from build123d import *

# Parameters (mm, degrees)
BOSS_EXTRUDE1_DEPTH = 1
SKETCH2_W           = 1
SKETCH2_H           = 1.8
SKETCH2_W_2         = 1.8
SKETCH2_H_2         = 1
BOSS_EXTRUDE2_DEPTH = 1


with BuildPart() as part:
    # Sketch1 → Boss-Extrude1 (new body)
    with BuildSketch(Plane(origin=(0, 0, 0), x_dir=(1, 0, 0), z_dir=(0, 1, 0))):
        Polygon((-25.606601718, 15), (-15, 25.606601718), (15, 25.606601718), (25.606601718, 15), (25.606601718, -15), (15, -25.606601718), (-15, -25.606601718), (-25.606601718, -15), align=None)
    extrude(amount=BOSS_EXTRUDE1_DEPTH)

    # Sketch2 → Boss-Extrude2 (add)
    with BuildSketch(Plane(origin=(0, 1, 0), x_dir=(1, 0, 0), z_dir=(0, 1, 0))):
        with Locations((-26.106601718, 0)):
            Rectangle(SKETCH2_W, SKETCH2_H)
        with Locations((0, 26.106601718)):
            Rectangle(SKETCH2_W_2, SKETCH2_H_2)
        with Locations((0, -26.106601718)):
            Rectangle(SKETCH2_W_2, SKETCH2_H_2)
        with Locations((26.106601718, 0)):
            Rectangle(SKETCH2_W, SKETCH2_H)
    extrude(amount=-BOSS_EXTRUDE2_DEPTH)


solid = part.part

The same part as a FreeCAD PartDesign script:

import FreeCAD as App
import Part
import Sketcher

V = App.Vector

doc = App.newDocument("Part")
body = doc.addObject("PartDesign::Body", "Body")

# Sketch on XZ plane
sketch1 = doc.addObject("Sketcher::SketchObject", "Sketch")
body.addObject(sketch1)
sketch1.AttachmentSupport = (doc.XZ_Plane, [""])
sketch1.MapMode = "FlatFace"
sketch1.addGeometry([
    Part.LineSegment(V(-15, -26, 0), V(-26, -15, 0)),  # 0
    Part.LineSegment(V(-26, -15, 0), V(-26, 15, 0)),  # 1
    Part.LineSegment(V(-26, 15, 0), V(-15, 26, 0)),  # 2
    Part.LineSegment(V(-15, 26, 0), V(15, 26, 0)),  # 3
    Part.LineSegment(V(15, 26, 0), V(26, 15, 0)),  # 4
    Part.LineSegment(V(26, 15, 0), V(26, -15, 0)),  # 5
    Part.LineSegment(V(26, -15, 0), V(15, -26, 0)),  # 6
    Part.LineSegment(V(15, -26, 0), V(-15, -26, 0)),  # 7
], False)
sketch1.addConstraint([
    Sketcher.Constraint("Coincident", 0, 2, 1, 1),
    Sketcher.Constraint("Coincident", 1, 2, 2, 1),
    Sketcher.Constraint("Coincident", 2, 2, 3, 1),
    Sketcher.Constraint("Coincident", 3, 2, 4, 1),
    Sketcher.Constraint("Coincident", 4, 2, 5, 1),
    Sketcher.Constraint("Coincident", 5, 2, 6, 1),
    Sketcher.Constraint("Coincident", 6, 2, 7, 1),
    Sketcher.Constraint("Coincident", 7, 2, 0, 1),
    Sketcher.Constraint("Vertical", 1),
    Sketcher.Constraint("Horizontal", 3),
    Sketcher.Constraint("Vertical", 5),
    Sketcher.Constraint("Horizontal", 7),
    Sketcher.Constraint("Symmetric", 0, 2, 4, 2, -1, 1),
    Sketcher.Constraint("Symmetric", 2, 2, 6, 2, -1, 1),
    Sketcher.Constraint("Perpendicular", 0, 2),
    Sketcher.Constraint("Perpendicular", 2, 4),
    Sketcher.Constraint("Perpendicular", 4, 6),
    Sketcher.Constraint("Horizontal", 1, 2, 4, 2),
    Sketcher.Constraint("Vertical", 3, 2, 6, 2),
    Sketcher.Constraint("Equal", 7, 1),
    Sketcher.Constraint("DistanceX", 3, 1, 3, 2, 30.0),
    Sketcher.Constraint("Distance", 0, 15.0),
])
pad1 = doc.addObject("PartDesign::Pad", "Pad")
body.addObject(pad1)
pad1.Profile = sketch1
pad1.Length = 1
pad1.Reversed = True

# Sketch on XZ plane
sketch2 = doc.addObject("Sketcher::SketchObject", "Sketch001")
body.addObject(sketch2)
sketch2.AttachmentSupport = (doc.XZ_Plane, [""])
sketch2.MapMode = "FlatFace"
sketch2.AttachmentOffset = App.Placement(V(0, 0, -1), App.Rotation())
sketch2.addGeometry([
    Part.LineSegment(V(-26.6, -0.9, 0), V(-26.6, 0.9, 0)),  # 0
    Part.LineSegment(V(-26.6, 0.9, 0), V(-25.6, 0.9, 0)),  # 1
    Part.LineSegment(V(-25.6, 0.9, 0), V(-25.6, -0.9, 0)),  # 2
    Part.LineSegment(V(-25.6, -0.9, 0), V(-26.6, -0.9, 0)),  # 3
    Part.LineSegment(V(-0.9, -26.6, 0), V(-0.9, -25.6, 0)),  # 4
    Part.LineSegment(V(-0.9, -25.6, 0), V(0.9, -25.6, 0)),  # 5
    Part.LineSegment(V(0.9, -25.6, 0), V(0.9, -26.6, 0)),  # 6
    Part.LineSegment(V(0.9, -26.6, 0), V(-0.9, -26.6, 0)),  # 7
    Part.LineSegment(V(-0.9, 25.6, 0), V(-0.9, 26.6, 0)),  # 8
    Part.LineSegment(V(-0.9, 26.6, 0), V(0.9, 26.6, 0)),  # 9
    Part.LineSegment(V(0.9, 26.6, 0), V(0.9, 25.6, 0)),  # 10
    Part.LineSegment(V(0.9, 25.6, 0), V(-0.9, 25.6, 0)),  # 11
    Part.LineSegment(V(25.6, -0.9, 0), V(25.6, 0.9, 0)),  # 12
    Part.LineSegment(V(25.6, 0.9, 0), V(26.6, 0.9, 0)),  # 13
    Part.LineSegment(V(26.6, 0.9, 0), V(26.6, -0.9, 0)),  # 14
    Part.LineSegment(V(26.6, -0.9, 0), V(25.6, -0.9, 0)),  # 15
], False)
sketch2.addConstraint([
    Sketcher.Constraint("Coincident", 0, 2, 1, 1),
    Sketcher.Constraint("Coincident", 1, 2, 2, 1),
    Sketcher.Constraint("Coincident", 2, 2, 3, 1),
    Sketcher.Constraint("Coincident", 3, 2, 0, 1),
    Sketcher.Constraint("Coincident", 4, 2, 5, 1),
    Sketcher.Constraint("Coincident", 5, 2, 6, 1),
    Sketcher.Constraint("Coincident", 6, 2, 7, 1),
    Sketcher.Constraint("Coincident", 7, 2, 4, 1),
    Sketcher.Constraint("Coincident", 8, 2, 9, 1),
    Sketcher.Constraint("Coincident", 9, 2, 10, 1),
    Sketcher.Constraint("Coincident", 10, 2, 11, 1),
    Sketcher.Constraint("Coincident", 11, 2, 8, 1),
    Sketcher.Constraint("Coincident", 12, 2, 13, 1),
    Sketcher.Constraint("Coincident", 13, 2, 14, 1),
    Sketcher.Constraint("Coincident", 14, 2, 15, 1),
    Sketcher.Constraint("Coincident", 15, 2, 12, 1),
    Sketcher.Constraint("Vertical", 0),
    Sketcher.Constraint("Horizontal", 1),
    Sketcher.Constraint("Vertical", 2),
    Sketcher.Constraint("Horizontal", 3),
    Sketcher.Constraint("Vertical", 4),
    Sketcher.Constraint("Horizontal", 5),
    Sketcher.Constraint("Vertical", 6),
    Sketcher.Constraint("Horizontal", 7),
    Sketcher.Constraint("Vertical", 8),
    Sketcher.Constraint("Horizontal", 9),
    Sketcher.Constraint("Vertical", 10),
    Sketcher.Constraint("Horizontal", 11),
    Sketcher.Constraint("Vertical", 12),
    Sketcher.Constraint("Horizontal", 13),
    Sketcher.Constraint("Vertical", 14),
    Sketcher.Constraint("Horizontal", 15),
    Sketcher.Constraint("Symmetric", 6, 2, 8, 2, -1, 1),
    Sketcher.Constraint("Symmetric", 4, 2, 10, 2, -1, 1),
    Sketcher.Constraint("Symmetric", 2, 2, 12, 2, -1, 1),
    Sketcher.Constraint("Symmetric", 0, 2, 14, 2, -1, 1),
    Sketcher.Constraint("Horizontal", 1, 2, 12, 2),
    Sketcher.Constraint("Vertical", 7, 2, 8, 2),
    Sketcher.Constraint("Equal", 11, 0),
    Sketcher.Constraint("Equal", 15, 4),
    Sketcher.Constraint("DistanceX", 1, 1, 1, 2, 1.0),
    Sketcher.Constraint("DistanceX", 5, 1, 5, 2, 1.8),
    Sketcher.Constraint("DistanceX", 0, 2, -1, 1, 26.606602),
    Sketcher.Constraint("DistanceY", 4, 2, -1, 1, 25.606602),
])
pad2 = doc.addObject("PartDesign::Pad", "Pad001")
body.addObject(pad2)
pad2.Profile = sketch2
pad2.Length = 1

doc.recompute()
